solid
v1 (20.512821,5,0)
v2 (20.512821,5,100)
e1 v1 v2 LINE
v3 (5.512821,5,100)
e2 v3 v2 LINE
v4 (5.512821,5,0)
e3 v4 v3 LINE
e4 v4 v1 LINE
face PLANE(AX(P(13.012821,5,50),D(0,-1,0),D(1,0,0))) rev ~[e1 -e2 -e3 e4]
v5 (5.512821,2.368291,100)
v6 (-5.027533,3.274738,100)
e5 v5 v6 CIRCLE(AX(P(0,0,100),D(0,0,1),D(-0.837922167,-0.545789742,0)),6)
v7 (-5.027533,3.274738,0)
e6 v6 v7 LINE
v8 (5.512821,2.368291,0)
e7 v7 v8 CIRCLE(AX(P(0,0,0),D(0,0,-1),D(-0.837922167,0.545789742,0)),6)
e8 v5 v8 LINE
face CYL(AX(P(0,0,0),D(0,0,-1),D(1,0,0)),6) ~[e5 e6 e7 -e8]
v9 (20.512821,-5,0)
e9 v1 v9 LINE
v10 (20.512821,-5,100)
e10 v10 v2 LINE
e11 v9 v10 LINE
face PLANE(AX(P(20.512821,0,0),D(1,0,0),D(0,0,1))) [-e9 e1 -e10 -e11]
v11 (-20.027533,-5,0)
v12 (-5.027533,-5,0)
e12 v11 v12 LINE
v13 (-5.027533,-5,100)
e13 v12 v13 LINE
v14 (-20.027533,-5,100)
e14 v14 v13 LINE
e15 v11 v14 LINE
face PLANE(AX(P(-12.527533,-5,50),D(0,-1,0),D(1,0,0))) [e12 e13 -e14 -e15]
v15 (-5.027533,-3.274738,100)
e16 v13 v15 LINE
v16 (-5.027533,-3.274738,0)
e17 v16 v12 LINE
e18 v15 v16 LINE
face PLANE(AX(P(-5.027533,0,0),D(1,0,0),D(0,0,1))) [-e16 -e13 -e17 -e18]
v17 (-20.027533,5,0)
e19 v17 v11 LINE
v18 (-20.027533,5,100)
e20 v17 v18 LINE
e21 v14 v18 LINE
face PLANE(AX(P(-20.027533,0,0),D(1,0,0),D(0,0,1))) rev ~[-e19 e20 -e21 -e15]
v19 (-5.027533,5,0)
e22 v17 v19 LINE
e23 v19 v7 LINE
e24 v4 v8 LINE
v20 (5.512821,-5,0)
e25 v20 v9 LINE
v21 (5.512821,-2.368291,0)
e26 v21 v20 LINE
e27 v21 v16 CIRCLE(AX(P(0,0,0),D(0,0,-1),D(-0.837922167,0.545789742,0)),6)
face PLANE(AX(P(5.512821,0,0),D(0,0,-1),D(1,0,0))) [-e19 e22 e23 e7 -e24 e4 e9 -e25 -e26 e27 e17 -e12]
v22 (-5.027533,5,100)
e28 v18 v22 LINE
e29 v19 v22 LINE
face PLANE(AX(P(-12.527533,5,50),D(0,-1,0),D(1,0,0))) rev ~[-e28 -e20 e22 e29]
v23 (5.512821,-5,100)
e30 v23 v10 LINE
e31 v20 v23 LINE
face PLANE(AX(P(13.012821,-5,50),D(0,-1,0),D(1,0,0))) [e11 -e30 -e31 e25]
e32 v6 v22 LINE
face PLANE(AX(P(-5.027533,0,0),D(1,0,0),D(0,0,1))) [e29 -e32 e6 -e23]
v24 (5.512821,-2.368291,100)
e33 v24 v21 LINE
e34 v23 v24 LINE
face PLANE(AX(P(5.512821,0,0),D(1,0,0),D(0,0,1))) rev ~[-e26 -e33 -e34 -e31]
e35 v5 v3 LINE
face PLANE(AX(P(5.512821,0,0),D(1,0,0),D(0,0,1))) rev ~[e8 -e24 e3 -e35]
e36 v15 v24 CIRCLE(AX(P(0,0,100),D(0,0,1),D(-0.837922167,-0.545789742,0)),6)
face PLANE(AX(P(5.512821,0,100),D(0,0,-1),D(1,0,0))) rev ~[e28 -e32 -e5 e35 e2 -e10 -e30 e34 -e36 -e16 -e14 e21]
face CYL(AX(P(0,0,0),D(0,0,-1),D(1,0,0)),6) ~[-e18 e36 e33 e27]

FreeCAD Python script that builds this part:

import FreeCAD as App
import Part
import Sketcher
Q = App.Units.Quantity

doc = App.newDocument("Part")
body = doc.addObject("PartDesign::Body", "Body")

sketch1 = doc.addObject("Sketcher::SketchObject", "Sketch")
body.addObject(sketch1)
sketch1.AttachmentSupport = (doc.XY_Plane, [""])
sketch1.MapMode = "FlatFace"
sketch1.addGeometry(Part.Circle(App.Vector(0, 0, 0), App.Vector(0, 0, 1), 6), False)
sketch1.addConstraint([
    Sketcher.Constraint("Coincident", 0, 3, -1, 1),
    Sketcher.Constraint("Diameter", 0, Q("12 mm")),
])
pad1 = doc.addObject("PartDesign::Pad", "Pad")
body.addObject(pad1)
pad1.Profile = sketch1
pad1.Length = 100

sketch2 = doc.addObject("Sketcher::SketchObject", "Sketch001")
body.addObject(sketch2)
sketch2.AttachmentSupport = (doc.XZ_Plane, [""])
sketch2.MapMode = "FlatFace"
sketch2.addGeometry([
    Part.LineSegment(App.Vector(-20, 100, 0), App.Vector(-20, 0, 0)),
    Part.LineSegment(App.Vector(-20, 0, 0), App.Vector(-5, 0, 0)),
    Part.LineSegment(App.Vector(-5, 0, 0), App.Vector(-5, 100, 0)),
    Part.LineSegment(App.Vector(-5, 100, 0), App.Vector(-20, 100, 0)),
], False)
sketch2.addConstraint([
    Sketcher.Constraint("Coincident", 0, 2, 1, 1),
    Sketcher.Constraint("Coincident", 1, 2, 2, 1),
    Sketcher.Constraint("Coincident", 2, 2, 3, 1),
    Sketcher.Constraint("Coincident", 3, 2, 0, 1),
    Sketcher.Constraint("Vertical", 0),
    Sketcher.Constraint("Horizontal", 1),
    Sketcher.Constraint("Vertical", 2),
    Sketcher.Constraint("Horizontal", 3),
    Sketcher.Constraint("PointOnObject", 0, 2, -1),
    Sketcher.Constraint("DistanceX", 1, 1, 1, 2, Q("15 mm")),
    Sketcher.Constraint("DistanceY", 0, 2, 0, 1, Q("100 mm")),
    Sketcher.Constraint("DistanceX", 0, 2, -1, 1, Q("20.027533 mm")),
])
pad2 = doc.addObject("PartDesign::Pad", "Pad001")
body.addObject(pad2)
pad2.Profile = sketch2
pad2.Length = 10
pad2.Midplane = True

sketch3 = doc.addObject("Sketcher::SketchObject", "Sketch002")
body.addObject(sketch3)
sketch3.AttachmentSupport = (doc.XZ_Plane, [""])
sketch3.MapMode = "FlatFace"
sketch3.addGeometry([
    Part.LineSegment(App.Vector(6, 100, 0), App.Vector(6, 0, 0)),
    Part.LineSegment(App.Vector(6, 0, 0), App.Vector(21, 0, 0)),
    Part.LineSegment(App.Vector(21, 0, 0), App.Vector(21, 100, 0)),
    Part.LineSegment(App.Vector(21, 100, 0), App.Vector(6, 100, 0)),
], False)
sketch3.addConstraint([
    Sketcher.Constraint("Coincident", 0, 2, 1, 1),
    Sketcher.Constraint("Coincident", 1, 2, 2, 1),
    Sketcher.Constraint("Coincident", 2, 2, 3, 1),
    Sketcher.Constraint("Coincident", 3, 2, 0, 1),
    Sketcher.Constraint("Vertical", 0),
    Sketcher.Constraint("Horizontal", 1),
    Sketcher.Constraint("Vertical", 2),
    Sketcher.Constraint("Horizontal", 3),
    Sketcher.Constraint("PointOnObject", 0, 2, -1),
    Sketcher.Constraint("DistanceX", 1, 1, 1, 2, Q("15 mm")),
    Sketcher.Constraint("DistanceY", 0, 2, 0, 1, Q("100 mm")),
    Sketcher.Constraint("DistanceX", -1, 1, 0, 2, Q("5.512821 mm")),
])
pad3 = doc.addObject("PartDesign::Pad", "Pad002")
body.addObject(pad3)
pad3.Profile = sketch3
pad3.Length = 10
pad3.Midplane = True

doc.recompute()
